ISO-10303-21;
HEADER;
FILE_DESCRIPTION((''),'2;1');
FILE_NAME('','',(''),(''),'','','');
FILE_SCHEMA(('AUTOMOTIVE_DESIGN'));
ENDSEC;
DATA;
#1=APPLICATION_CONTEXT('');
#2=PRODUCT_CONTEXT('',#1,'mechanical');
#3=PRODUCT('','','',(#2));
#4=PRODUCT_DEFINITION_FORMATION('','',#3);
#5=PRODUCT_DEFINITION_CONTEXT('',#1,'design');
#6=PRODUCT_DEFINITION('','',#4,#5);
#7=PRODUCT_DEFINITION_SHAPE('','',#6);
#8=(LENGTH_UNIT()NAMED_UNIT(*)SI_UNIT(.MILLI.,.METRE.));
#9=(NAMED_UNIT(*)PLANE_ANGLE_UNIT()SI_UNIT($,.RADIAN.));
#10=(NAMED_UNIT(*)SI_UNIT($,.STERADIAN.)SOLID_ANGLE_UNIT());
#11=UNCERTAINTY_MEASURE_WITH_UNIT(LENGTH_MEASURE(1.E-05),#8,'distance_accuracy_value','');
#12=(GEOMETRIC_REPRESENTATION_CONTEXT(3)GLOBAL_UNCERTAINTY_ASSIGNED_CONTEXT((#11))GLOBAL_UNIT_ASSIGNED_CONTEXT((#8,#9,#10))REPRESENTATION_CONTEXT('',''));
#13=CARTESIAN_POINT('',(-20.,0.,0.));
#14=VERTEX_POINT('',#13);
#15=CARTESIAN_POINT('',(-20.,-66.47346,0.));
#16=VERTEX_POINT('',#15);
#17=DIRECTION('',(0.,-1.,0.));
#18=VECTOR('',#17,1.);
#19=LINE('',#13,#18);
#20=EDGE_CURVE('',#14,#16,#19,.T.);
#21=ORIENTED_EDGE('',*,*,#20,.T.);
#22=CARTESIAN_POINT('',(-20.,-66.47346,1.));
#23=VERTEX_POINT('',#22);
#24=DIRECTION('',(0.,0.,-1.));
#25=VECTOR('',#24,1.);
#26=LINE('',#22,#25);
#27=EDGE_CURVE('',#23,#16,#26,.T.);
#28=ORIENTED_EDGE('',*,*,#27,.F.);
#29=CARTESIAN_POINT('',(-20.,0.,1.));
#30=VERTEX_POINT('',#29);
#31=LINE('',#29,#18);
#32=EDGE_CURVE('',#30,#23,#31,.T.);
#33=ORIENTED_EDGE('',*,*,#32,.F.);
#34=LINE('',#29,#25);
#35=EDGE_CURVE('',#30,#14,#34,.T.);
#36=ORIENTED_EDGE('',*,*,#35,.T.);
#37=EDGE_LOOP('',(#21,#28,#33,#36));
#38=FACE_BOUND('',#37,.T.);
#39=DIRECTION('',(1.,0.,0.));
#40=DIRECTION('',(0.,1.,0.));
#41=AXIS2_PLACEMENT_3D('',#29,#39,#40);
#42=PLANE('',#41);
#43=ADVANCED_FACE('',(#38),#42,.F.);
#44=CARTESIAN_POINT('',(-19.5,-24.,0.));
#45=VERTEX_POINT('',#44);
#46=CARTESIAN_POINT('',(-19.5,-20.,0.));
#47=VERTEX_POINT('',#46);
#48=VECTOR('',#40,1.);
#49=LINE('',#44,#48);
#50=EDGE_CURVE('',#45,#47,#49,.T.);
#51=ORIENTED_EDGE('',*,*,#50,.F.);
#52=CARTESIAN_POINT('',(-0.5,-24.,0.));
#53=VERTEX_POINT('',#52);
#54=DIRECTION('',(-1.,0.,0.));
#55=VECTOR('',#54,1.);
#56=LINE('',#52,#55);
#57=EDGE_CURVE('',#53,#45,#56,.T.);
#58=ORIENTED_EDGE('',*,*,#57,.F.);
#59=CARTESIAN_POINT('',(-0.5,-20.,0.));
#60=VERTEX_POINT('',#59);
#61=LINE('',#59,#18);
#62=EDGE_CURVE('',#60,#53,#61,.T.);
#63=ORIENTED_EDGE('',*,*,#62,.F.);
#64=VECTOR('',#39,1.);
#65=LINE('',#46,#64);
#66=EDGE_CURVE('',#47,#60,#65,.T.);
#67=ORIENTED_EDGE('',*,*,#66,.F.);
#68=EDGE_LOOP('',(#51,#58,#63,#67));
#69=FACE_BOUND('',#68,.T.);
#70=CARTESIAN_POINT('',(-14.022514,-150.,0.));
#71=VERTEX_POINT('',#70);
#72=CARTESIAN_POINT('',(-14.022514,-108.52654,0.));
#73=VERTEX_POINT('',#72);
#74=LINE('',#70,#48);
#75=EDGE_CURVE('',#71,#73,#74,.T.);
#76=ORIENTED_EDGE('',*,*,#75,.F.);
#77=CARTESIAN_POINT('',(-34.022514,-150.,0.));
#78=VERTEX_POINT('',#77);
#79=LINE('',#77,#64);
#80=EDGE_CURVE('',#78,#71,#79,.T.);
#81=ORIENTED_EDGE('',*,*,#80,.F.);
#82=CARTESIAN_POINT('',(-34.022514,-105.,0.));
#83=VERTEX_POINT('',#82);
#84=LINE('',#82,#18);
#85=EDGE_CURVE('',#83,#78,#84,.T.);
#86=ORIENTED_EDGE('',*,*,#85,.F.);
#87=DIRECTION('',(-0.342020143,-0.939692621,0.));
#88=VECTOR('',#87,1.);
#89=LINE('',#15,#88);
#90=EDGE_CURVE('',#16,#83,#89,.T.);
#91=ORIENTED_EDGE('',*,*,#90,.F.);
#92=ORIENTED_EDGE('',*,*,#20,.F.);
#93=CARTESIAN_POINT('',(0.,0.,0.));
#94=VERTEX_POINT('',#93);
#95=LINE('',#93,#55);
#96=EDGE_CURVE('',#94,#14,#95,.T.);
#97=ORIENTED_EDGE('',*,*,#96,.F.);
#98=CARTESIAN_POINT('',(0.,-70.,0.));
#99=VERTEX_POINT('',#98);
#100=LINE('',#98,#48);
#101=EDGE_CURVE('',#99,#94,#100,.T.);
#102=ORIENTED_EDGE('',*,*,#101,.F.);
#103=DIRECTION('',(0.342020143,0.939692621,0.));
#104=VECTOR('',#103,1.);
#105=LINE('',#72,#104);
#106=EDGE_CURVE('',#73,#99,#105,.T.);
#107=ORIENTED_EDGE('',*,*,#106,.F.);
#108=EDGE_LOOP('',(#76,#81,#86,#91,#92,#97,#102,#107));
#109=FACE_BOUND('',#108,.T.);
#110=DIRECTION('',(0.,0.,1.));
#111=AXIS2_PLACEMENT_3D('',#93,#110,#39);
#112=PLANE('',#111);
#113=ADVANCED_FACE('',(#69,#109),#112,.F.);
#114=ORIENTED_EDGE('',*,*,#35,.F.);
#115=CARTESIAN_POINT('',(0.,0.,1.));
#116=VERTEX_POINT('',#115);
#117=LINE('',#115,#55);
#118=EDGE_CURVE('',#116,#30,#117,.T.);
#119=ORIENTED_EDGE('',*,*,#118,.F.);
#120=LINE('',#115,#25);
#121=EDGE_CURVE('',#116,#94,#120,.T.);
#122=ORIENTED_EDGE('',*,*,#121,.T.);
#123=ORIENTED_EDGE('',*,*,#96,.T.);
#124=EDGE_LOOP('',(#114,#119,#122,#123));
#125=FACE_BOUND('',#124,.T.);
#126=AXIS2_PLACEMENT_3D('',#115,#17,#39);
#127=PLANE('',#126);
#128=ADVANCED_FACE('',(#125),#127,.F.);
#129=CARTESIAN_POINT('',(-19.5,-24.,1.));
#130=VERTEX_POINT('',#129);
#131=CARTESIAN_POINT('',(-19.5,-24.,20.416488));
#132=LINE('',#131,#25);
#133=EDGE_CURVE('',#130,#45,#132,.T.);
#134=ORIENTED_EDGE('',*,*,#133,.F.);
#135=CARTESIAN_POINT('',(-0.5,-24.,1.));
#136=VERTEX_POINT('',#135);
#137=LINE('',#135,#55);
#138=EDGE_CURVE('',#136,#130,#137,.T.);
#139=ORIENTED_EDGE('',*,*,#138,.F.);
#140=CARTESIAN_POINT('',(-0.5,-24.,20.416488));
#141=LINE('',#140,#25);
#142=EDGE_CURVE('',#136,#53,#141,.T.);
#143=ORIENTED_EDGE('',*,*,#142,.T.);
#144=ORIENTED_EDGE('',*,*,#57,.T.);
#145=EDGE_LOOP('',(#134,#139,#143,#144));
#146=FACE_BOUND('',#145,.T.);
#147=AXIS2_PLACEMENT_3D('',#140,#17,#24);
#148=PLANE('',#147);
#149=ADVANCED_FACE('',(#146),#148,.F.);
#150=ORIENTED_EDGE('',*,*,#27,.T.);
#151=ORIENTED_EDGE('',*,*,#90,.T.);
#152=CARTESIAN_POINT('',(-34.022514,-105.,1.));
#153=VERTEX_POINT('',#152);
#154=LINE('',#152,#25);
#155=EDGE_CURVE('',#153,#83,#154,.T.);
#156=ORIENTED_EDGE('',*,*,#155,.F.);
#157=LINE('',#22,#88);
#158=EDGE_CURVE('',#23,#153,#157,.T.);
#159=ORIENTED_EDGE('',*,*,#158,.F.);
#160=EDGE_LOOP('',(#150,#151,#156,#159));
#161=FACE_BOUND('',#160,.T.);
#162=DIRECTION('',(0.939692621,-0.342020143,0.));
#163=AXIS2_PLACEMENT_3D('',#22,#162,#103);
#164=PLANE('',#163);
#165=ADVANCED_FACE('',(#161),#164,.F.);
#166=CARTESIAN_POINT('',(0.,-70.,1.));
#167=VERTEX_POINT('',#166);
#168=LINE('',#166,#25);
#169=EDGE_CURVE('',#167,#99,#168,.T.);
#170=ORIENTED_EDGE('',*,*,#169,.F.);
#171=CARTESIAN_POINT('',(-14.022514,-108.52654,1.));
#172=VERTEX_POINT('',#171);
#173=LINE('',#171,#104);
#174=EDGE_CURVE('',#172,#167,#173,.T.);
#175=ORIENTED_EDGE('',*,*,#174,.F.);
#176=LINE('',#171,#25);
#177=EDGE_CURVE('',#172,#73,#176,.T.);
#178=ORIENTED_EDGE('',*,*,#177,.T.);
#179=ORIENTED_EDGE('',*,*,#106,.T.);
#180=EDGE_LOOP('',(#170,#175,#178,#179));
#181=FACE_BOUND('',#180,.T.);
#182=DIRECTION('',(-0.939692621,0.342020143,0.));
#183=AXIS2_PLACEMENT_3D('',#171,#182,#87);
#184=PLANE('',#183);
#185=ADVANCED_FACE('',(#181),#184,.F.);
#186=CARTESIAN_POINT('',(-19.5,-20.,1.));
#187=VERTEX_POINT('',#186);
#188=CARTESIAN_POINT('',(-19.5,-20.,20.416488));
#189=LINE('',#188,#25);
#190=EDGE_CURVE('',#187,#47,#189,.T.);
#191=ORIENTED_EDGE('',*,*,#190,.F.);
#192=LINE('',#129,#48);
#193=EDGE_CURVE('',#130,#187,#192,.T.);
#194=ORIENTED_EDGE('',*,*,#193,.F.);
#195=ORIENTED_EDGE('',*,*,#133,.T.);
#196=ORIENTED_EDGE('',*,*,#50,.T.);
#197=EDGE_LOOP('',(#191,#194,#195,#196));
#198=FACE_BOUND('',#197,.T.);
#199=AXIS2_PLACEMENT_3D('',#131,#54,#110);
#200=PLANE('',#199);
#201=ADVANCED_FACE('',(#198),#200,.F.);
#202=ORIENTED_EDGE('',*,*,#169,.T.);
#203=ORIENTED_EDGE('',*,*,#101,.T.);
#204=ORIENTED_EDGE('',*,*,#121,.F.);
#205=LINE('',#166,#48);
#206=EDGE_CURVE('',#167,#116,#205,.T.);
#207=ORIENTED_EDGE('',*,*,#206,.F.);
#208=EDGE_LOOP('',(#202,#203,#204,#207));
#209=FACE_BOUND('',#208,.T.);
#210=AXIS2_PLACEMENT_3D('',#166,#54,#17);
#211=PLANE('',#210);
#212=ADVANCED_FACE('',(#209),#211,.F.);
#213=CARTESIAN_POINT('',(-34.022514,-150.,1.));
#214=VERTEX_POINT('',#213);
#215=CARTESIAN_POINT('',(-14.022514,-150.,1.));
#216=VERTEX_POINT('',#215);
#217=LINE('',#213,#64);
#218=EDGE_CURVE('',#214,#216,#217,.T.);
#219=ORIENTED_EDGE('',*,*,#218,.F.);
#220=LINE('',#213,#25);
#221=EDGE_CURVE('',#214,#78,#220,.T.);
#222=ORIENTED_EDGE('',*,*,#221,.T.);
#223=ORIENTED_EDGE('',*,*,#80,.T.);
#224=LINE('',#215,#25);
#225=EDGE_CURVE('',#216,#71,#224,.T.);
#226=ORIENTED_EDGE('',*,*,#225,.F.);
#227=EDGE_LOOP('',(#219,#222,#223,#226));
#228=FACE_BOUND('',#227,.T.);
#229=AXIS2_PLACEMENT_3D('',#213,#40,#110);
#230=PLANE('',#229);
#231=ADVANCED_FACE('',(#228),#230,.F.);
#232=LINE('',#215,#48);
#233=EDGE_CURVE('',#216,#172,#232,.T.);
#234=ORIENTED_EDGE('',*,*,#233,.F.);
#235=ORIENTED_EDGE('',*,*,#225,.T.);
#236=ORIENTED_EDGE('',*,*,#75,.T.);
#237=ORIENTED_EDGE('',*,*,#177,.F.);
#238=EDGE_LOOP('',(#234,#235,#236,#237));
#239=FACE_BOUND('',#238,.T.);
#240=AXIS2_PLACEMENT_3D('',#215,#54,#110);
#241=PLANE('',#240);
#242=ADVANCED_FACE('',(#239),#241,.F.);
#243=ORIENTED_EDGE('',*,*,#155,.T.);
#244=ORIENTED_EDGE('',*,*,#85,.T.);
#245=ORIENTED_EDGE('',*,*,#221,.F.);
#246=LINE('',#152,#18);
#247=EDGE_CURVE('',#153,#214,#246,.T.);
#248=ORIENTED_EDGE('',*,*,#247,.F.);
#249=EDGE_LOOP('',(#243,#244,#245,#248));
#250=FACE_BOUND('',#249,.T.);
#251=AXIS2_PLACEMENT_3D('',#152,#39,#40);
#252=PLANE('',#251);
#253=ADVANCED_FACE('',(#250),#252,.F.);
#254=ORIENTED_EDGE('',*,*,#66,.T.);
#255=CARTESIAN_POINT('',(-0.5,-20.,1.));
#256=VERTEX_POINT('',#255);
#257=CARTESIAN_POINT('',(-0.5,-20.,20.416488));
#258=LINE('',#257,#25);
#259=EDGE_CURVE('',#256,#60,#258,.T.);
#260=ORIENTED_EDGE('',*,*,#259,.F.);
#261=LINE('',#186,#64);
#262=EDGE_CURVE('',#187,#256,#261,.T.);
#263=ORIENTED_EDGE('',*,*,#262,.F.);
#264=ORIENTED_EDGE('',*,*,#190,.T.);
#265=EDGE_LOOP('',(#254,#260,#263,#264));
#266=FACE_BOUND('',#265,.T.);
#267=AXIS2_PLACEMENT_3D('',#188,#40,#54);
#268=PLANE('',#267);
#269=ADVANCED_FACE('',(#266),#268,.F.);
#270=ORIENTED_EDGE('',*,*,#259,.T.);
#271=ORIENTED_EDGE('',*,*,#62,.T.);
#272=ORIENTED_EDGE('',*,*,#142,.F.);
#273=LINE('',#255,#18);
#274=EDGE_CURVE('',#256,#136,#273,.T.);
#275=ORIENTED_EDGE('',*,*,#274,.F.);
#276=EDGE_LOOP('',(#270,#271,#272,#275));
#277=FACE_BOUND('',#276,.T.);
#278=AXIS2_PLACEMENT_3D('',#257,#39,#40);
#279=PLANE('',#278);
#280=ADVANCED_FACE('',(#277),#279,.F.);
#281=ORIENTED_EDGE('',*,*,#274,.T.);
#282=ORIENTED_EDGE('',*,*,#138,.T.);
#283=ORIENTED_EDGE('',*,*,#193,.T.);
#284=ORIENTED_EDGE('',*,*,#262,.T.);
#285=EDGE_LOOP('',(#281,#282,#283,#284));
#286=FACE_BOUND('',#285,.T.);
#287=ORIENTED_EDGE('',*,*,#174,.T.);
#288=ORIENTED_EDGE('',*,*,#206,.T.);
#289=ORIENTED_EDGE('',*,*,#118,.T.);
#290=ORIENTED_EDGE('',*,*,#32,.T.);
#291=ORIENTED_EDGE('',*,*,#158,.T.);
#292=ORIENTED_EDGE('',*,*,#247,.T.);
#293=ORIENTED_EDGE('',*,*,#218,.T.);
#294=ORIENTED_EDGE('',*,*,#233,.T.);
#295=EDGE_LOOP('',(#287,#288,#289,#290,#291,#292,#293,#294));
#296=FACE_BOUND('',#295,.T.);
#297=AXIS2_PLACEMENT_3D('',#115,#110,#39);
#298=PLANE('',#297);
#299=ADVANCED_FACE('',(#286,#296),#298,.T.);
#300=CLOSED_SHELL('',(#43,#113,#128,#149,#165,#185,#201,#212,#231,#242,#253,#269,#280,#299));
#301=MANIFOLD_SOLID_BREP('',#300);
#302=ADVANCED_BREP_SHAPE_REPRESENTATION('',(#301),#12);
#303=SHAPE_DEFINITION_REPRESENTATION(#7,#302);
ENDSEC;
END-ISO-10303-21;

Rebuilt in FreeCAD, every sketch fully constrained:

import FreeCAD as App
import Part
import Sketcher

V = App.Vector
Q = App.Units.Quantity

doc = App.newDocument("Part")
body = doc.addObject("PartDesign::Body", "Body")

# Sketch on XY plane
sketch1 = body.newObject("Sketcher::SketchObject", "Sketch")
sketch1.AttachmentSupport = (doc.getObject("XY_Plane"), [""])
sketch1.MapMode = "FlatFace"
sketch1.addGeometry([
    Part.LineSegment(V(0, 0, 0), V(-20, 0, 0)),  # 0
    Part.LineSegment(V(-20, 0, 0), V(-20, -66.47346, 0)),  # 1
    Part.LineSegment(V(-20, -66.47346, 0), V(-34.022514, -105, 0)),  # 2
    Part.LineSegment(V(-34.022514, -105, 0), V(-34.022514, -150, 0)),  # 3
    Part.LineSegment(V(-34.022514, -150, 0), V(-14.022514, -150, 0)),  # 4
    Part.LineSegment(V(-14.022514, -150, 0), V(-14.022514, -108.52654, 0)),  # 5
    Part.LineSegment(V(-14.022514, -108.52654, 0), V(0, -70, 0)),  # 6
    Part.LineSegment(V(0, -70, 0), V(0, 0, 0)),  # 7
], False)
sketch1.addConstraint([
    Sketcher.Constraint("Coincident", 0, 2, 1, 1),
    Sketcher.Constraint("Coincident", 1, 2, 2, 1),
    Sketcher.Constraint("Coincident", 2, 2, 3, 1),
    Sketcher.Constraint("Coincident", 3, 2, 4, 1),
    Sketcher.Constraint("Coincident", 4, 2, 5, 1),
    Sketcher.Constraint("Coincident", 5, 2, 6, 1),
    Sketcher.Constraint("Coincident", 6, 2, 7, 1),
    Sketcher.Constraint("Coincident", 7, 2, 0, 1),
    Sketcher.Constraint("Horizontal", 0),
    Sketcher.Constraint("Vertical", 1),
    Sketcher.Constraint("Vertical", 3),
    Sketcher.Constraint("Horizontal", 4),
    Sketcher.Constraint("Vertical", 5),
    Sketcher.Constraint("Vertical", 7),
    Sketcher.Constraint("Coincident", 7, 2, -1, 1),
    Sketcher.Constraint("Parallel", 2, 6),
    Sketcher.Constraint("Equal", 0, 4),
    Sketcher.Constraint("DistanceX", 0, 2, 0, 1, 20.0),
    Sketcher.Constraint("DistanceY", 3, 2, 3, 1, 45.0),
    Sketcher.Constraint("DistanceY", 7, 1, 7, 2, 70.0),
    Sketcher.Constraint("Angle", 2, Q("-110 deg")),
    Sketcher.Constraint("DistanceY", 2, 2, -1, 1, 105.0),
    Sketcher.Constraint("DistanceY", 1, 2, 1, 1, 66.47346),
])
pad1 = body.newObject("PartDesign::Pad", "Pad")
pad1.Profile = sketch1
pad1.Length = 1

# Sketch on XY plane
sketch2 = body.newObject("Sketcher::SketchObject", "Sketch001")
sketch2.AttachmentSupport = (doc.getObject("XY_Plane"), [""])
sketch2.MapMode = "FlatFace"
sketch2.addGeometry([
    Part.LineSegment(V(-0.5, -20, 0), V(-0.5, -24, 0)),
    Part.LineSegment(V(-0.5, -24, 0), V(-19.5, -24, 0)),
    Part.LineSegment(V(-19.5, -24, 0), V(-19.5, -20, 0)),
    Part.LineSegment(V(-19.5, -20, 0), V(-0.5, -20, 0)),
], False)
sketch2.addConstraint([
    Sketcher.Constraint("Coincident", 0, 2, 1, 1),
    Sketcher.Constraint("Coincident", 1, 2, 2, 1),
    Sketcher.Constraint("Coincident", 2, 2, 3, 1),
    Sketcher.Constraint("Coincident", 3, 2, 0, 1),
    Sketcher.Constraint("Vertical", 0),
    Sketcher.Constraint("Horizontal", 1),
    Sketcher.Constraint("Vertical", 2),
    Sketcher.Constraint("Horizontal", 3),
    Sketcher.Constraint("DistanceX", 1, 2, 1, 1, 19.0),
    Sketcher.Constraint("DistanceY", 0, 2, 0, 1, 4.0),
    Sketcher.Constraint("DistanceY", 0, 2, -1, 1, 24.0),
    Sketcher.Constraint("DistanceX", 0, 2, -1, 1, 0.5),
])
pocket1 = body.newObject("PartDesign::Pocket", "Pocket")
pocket1.Profile = sketch2
pocket1.Length = 1
pocket1.Reversed = True

doc.recompute()
